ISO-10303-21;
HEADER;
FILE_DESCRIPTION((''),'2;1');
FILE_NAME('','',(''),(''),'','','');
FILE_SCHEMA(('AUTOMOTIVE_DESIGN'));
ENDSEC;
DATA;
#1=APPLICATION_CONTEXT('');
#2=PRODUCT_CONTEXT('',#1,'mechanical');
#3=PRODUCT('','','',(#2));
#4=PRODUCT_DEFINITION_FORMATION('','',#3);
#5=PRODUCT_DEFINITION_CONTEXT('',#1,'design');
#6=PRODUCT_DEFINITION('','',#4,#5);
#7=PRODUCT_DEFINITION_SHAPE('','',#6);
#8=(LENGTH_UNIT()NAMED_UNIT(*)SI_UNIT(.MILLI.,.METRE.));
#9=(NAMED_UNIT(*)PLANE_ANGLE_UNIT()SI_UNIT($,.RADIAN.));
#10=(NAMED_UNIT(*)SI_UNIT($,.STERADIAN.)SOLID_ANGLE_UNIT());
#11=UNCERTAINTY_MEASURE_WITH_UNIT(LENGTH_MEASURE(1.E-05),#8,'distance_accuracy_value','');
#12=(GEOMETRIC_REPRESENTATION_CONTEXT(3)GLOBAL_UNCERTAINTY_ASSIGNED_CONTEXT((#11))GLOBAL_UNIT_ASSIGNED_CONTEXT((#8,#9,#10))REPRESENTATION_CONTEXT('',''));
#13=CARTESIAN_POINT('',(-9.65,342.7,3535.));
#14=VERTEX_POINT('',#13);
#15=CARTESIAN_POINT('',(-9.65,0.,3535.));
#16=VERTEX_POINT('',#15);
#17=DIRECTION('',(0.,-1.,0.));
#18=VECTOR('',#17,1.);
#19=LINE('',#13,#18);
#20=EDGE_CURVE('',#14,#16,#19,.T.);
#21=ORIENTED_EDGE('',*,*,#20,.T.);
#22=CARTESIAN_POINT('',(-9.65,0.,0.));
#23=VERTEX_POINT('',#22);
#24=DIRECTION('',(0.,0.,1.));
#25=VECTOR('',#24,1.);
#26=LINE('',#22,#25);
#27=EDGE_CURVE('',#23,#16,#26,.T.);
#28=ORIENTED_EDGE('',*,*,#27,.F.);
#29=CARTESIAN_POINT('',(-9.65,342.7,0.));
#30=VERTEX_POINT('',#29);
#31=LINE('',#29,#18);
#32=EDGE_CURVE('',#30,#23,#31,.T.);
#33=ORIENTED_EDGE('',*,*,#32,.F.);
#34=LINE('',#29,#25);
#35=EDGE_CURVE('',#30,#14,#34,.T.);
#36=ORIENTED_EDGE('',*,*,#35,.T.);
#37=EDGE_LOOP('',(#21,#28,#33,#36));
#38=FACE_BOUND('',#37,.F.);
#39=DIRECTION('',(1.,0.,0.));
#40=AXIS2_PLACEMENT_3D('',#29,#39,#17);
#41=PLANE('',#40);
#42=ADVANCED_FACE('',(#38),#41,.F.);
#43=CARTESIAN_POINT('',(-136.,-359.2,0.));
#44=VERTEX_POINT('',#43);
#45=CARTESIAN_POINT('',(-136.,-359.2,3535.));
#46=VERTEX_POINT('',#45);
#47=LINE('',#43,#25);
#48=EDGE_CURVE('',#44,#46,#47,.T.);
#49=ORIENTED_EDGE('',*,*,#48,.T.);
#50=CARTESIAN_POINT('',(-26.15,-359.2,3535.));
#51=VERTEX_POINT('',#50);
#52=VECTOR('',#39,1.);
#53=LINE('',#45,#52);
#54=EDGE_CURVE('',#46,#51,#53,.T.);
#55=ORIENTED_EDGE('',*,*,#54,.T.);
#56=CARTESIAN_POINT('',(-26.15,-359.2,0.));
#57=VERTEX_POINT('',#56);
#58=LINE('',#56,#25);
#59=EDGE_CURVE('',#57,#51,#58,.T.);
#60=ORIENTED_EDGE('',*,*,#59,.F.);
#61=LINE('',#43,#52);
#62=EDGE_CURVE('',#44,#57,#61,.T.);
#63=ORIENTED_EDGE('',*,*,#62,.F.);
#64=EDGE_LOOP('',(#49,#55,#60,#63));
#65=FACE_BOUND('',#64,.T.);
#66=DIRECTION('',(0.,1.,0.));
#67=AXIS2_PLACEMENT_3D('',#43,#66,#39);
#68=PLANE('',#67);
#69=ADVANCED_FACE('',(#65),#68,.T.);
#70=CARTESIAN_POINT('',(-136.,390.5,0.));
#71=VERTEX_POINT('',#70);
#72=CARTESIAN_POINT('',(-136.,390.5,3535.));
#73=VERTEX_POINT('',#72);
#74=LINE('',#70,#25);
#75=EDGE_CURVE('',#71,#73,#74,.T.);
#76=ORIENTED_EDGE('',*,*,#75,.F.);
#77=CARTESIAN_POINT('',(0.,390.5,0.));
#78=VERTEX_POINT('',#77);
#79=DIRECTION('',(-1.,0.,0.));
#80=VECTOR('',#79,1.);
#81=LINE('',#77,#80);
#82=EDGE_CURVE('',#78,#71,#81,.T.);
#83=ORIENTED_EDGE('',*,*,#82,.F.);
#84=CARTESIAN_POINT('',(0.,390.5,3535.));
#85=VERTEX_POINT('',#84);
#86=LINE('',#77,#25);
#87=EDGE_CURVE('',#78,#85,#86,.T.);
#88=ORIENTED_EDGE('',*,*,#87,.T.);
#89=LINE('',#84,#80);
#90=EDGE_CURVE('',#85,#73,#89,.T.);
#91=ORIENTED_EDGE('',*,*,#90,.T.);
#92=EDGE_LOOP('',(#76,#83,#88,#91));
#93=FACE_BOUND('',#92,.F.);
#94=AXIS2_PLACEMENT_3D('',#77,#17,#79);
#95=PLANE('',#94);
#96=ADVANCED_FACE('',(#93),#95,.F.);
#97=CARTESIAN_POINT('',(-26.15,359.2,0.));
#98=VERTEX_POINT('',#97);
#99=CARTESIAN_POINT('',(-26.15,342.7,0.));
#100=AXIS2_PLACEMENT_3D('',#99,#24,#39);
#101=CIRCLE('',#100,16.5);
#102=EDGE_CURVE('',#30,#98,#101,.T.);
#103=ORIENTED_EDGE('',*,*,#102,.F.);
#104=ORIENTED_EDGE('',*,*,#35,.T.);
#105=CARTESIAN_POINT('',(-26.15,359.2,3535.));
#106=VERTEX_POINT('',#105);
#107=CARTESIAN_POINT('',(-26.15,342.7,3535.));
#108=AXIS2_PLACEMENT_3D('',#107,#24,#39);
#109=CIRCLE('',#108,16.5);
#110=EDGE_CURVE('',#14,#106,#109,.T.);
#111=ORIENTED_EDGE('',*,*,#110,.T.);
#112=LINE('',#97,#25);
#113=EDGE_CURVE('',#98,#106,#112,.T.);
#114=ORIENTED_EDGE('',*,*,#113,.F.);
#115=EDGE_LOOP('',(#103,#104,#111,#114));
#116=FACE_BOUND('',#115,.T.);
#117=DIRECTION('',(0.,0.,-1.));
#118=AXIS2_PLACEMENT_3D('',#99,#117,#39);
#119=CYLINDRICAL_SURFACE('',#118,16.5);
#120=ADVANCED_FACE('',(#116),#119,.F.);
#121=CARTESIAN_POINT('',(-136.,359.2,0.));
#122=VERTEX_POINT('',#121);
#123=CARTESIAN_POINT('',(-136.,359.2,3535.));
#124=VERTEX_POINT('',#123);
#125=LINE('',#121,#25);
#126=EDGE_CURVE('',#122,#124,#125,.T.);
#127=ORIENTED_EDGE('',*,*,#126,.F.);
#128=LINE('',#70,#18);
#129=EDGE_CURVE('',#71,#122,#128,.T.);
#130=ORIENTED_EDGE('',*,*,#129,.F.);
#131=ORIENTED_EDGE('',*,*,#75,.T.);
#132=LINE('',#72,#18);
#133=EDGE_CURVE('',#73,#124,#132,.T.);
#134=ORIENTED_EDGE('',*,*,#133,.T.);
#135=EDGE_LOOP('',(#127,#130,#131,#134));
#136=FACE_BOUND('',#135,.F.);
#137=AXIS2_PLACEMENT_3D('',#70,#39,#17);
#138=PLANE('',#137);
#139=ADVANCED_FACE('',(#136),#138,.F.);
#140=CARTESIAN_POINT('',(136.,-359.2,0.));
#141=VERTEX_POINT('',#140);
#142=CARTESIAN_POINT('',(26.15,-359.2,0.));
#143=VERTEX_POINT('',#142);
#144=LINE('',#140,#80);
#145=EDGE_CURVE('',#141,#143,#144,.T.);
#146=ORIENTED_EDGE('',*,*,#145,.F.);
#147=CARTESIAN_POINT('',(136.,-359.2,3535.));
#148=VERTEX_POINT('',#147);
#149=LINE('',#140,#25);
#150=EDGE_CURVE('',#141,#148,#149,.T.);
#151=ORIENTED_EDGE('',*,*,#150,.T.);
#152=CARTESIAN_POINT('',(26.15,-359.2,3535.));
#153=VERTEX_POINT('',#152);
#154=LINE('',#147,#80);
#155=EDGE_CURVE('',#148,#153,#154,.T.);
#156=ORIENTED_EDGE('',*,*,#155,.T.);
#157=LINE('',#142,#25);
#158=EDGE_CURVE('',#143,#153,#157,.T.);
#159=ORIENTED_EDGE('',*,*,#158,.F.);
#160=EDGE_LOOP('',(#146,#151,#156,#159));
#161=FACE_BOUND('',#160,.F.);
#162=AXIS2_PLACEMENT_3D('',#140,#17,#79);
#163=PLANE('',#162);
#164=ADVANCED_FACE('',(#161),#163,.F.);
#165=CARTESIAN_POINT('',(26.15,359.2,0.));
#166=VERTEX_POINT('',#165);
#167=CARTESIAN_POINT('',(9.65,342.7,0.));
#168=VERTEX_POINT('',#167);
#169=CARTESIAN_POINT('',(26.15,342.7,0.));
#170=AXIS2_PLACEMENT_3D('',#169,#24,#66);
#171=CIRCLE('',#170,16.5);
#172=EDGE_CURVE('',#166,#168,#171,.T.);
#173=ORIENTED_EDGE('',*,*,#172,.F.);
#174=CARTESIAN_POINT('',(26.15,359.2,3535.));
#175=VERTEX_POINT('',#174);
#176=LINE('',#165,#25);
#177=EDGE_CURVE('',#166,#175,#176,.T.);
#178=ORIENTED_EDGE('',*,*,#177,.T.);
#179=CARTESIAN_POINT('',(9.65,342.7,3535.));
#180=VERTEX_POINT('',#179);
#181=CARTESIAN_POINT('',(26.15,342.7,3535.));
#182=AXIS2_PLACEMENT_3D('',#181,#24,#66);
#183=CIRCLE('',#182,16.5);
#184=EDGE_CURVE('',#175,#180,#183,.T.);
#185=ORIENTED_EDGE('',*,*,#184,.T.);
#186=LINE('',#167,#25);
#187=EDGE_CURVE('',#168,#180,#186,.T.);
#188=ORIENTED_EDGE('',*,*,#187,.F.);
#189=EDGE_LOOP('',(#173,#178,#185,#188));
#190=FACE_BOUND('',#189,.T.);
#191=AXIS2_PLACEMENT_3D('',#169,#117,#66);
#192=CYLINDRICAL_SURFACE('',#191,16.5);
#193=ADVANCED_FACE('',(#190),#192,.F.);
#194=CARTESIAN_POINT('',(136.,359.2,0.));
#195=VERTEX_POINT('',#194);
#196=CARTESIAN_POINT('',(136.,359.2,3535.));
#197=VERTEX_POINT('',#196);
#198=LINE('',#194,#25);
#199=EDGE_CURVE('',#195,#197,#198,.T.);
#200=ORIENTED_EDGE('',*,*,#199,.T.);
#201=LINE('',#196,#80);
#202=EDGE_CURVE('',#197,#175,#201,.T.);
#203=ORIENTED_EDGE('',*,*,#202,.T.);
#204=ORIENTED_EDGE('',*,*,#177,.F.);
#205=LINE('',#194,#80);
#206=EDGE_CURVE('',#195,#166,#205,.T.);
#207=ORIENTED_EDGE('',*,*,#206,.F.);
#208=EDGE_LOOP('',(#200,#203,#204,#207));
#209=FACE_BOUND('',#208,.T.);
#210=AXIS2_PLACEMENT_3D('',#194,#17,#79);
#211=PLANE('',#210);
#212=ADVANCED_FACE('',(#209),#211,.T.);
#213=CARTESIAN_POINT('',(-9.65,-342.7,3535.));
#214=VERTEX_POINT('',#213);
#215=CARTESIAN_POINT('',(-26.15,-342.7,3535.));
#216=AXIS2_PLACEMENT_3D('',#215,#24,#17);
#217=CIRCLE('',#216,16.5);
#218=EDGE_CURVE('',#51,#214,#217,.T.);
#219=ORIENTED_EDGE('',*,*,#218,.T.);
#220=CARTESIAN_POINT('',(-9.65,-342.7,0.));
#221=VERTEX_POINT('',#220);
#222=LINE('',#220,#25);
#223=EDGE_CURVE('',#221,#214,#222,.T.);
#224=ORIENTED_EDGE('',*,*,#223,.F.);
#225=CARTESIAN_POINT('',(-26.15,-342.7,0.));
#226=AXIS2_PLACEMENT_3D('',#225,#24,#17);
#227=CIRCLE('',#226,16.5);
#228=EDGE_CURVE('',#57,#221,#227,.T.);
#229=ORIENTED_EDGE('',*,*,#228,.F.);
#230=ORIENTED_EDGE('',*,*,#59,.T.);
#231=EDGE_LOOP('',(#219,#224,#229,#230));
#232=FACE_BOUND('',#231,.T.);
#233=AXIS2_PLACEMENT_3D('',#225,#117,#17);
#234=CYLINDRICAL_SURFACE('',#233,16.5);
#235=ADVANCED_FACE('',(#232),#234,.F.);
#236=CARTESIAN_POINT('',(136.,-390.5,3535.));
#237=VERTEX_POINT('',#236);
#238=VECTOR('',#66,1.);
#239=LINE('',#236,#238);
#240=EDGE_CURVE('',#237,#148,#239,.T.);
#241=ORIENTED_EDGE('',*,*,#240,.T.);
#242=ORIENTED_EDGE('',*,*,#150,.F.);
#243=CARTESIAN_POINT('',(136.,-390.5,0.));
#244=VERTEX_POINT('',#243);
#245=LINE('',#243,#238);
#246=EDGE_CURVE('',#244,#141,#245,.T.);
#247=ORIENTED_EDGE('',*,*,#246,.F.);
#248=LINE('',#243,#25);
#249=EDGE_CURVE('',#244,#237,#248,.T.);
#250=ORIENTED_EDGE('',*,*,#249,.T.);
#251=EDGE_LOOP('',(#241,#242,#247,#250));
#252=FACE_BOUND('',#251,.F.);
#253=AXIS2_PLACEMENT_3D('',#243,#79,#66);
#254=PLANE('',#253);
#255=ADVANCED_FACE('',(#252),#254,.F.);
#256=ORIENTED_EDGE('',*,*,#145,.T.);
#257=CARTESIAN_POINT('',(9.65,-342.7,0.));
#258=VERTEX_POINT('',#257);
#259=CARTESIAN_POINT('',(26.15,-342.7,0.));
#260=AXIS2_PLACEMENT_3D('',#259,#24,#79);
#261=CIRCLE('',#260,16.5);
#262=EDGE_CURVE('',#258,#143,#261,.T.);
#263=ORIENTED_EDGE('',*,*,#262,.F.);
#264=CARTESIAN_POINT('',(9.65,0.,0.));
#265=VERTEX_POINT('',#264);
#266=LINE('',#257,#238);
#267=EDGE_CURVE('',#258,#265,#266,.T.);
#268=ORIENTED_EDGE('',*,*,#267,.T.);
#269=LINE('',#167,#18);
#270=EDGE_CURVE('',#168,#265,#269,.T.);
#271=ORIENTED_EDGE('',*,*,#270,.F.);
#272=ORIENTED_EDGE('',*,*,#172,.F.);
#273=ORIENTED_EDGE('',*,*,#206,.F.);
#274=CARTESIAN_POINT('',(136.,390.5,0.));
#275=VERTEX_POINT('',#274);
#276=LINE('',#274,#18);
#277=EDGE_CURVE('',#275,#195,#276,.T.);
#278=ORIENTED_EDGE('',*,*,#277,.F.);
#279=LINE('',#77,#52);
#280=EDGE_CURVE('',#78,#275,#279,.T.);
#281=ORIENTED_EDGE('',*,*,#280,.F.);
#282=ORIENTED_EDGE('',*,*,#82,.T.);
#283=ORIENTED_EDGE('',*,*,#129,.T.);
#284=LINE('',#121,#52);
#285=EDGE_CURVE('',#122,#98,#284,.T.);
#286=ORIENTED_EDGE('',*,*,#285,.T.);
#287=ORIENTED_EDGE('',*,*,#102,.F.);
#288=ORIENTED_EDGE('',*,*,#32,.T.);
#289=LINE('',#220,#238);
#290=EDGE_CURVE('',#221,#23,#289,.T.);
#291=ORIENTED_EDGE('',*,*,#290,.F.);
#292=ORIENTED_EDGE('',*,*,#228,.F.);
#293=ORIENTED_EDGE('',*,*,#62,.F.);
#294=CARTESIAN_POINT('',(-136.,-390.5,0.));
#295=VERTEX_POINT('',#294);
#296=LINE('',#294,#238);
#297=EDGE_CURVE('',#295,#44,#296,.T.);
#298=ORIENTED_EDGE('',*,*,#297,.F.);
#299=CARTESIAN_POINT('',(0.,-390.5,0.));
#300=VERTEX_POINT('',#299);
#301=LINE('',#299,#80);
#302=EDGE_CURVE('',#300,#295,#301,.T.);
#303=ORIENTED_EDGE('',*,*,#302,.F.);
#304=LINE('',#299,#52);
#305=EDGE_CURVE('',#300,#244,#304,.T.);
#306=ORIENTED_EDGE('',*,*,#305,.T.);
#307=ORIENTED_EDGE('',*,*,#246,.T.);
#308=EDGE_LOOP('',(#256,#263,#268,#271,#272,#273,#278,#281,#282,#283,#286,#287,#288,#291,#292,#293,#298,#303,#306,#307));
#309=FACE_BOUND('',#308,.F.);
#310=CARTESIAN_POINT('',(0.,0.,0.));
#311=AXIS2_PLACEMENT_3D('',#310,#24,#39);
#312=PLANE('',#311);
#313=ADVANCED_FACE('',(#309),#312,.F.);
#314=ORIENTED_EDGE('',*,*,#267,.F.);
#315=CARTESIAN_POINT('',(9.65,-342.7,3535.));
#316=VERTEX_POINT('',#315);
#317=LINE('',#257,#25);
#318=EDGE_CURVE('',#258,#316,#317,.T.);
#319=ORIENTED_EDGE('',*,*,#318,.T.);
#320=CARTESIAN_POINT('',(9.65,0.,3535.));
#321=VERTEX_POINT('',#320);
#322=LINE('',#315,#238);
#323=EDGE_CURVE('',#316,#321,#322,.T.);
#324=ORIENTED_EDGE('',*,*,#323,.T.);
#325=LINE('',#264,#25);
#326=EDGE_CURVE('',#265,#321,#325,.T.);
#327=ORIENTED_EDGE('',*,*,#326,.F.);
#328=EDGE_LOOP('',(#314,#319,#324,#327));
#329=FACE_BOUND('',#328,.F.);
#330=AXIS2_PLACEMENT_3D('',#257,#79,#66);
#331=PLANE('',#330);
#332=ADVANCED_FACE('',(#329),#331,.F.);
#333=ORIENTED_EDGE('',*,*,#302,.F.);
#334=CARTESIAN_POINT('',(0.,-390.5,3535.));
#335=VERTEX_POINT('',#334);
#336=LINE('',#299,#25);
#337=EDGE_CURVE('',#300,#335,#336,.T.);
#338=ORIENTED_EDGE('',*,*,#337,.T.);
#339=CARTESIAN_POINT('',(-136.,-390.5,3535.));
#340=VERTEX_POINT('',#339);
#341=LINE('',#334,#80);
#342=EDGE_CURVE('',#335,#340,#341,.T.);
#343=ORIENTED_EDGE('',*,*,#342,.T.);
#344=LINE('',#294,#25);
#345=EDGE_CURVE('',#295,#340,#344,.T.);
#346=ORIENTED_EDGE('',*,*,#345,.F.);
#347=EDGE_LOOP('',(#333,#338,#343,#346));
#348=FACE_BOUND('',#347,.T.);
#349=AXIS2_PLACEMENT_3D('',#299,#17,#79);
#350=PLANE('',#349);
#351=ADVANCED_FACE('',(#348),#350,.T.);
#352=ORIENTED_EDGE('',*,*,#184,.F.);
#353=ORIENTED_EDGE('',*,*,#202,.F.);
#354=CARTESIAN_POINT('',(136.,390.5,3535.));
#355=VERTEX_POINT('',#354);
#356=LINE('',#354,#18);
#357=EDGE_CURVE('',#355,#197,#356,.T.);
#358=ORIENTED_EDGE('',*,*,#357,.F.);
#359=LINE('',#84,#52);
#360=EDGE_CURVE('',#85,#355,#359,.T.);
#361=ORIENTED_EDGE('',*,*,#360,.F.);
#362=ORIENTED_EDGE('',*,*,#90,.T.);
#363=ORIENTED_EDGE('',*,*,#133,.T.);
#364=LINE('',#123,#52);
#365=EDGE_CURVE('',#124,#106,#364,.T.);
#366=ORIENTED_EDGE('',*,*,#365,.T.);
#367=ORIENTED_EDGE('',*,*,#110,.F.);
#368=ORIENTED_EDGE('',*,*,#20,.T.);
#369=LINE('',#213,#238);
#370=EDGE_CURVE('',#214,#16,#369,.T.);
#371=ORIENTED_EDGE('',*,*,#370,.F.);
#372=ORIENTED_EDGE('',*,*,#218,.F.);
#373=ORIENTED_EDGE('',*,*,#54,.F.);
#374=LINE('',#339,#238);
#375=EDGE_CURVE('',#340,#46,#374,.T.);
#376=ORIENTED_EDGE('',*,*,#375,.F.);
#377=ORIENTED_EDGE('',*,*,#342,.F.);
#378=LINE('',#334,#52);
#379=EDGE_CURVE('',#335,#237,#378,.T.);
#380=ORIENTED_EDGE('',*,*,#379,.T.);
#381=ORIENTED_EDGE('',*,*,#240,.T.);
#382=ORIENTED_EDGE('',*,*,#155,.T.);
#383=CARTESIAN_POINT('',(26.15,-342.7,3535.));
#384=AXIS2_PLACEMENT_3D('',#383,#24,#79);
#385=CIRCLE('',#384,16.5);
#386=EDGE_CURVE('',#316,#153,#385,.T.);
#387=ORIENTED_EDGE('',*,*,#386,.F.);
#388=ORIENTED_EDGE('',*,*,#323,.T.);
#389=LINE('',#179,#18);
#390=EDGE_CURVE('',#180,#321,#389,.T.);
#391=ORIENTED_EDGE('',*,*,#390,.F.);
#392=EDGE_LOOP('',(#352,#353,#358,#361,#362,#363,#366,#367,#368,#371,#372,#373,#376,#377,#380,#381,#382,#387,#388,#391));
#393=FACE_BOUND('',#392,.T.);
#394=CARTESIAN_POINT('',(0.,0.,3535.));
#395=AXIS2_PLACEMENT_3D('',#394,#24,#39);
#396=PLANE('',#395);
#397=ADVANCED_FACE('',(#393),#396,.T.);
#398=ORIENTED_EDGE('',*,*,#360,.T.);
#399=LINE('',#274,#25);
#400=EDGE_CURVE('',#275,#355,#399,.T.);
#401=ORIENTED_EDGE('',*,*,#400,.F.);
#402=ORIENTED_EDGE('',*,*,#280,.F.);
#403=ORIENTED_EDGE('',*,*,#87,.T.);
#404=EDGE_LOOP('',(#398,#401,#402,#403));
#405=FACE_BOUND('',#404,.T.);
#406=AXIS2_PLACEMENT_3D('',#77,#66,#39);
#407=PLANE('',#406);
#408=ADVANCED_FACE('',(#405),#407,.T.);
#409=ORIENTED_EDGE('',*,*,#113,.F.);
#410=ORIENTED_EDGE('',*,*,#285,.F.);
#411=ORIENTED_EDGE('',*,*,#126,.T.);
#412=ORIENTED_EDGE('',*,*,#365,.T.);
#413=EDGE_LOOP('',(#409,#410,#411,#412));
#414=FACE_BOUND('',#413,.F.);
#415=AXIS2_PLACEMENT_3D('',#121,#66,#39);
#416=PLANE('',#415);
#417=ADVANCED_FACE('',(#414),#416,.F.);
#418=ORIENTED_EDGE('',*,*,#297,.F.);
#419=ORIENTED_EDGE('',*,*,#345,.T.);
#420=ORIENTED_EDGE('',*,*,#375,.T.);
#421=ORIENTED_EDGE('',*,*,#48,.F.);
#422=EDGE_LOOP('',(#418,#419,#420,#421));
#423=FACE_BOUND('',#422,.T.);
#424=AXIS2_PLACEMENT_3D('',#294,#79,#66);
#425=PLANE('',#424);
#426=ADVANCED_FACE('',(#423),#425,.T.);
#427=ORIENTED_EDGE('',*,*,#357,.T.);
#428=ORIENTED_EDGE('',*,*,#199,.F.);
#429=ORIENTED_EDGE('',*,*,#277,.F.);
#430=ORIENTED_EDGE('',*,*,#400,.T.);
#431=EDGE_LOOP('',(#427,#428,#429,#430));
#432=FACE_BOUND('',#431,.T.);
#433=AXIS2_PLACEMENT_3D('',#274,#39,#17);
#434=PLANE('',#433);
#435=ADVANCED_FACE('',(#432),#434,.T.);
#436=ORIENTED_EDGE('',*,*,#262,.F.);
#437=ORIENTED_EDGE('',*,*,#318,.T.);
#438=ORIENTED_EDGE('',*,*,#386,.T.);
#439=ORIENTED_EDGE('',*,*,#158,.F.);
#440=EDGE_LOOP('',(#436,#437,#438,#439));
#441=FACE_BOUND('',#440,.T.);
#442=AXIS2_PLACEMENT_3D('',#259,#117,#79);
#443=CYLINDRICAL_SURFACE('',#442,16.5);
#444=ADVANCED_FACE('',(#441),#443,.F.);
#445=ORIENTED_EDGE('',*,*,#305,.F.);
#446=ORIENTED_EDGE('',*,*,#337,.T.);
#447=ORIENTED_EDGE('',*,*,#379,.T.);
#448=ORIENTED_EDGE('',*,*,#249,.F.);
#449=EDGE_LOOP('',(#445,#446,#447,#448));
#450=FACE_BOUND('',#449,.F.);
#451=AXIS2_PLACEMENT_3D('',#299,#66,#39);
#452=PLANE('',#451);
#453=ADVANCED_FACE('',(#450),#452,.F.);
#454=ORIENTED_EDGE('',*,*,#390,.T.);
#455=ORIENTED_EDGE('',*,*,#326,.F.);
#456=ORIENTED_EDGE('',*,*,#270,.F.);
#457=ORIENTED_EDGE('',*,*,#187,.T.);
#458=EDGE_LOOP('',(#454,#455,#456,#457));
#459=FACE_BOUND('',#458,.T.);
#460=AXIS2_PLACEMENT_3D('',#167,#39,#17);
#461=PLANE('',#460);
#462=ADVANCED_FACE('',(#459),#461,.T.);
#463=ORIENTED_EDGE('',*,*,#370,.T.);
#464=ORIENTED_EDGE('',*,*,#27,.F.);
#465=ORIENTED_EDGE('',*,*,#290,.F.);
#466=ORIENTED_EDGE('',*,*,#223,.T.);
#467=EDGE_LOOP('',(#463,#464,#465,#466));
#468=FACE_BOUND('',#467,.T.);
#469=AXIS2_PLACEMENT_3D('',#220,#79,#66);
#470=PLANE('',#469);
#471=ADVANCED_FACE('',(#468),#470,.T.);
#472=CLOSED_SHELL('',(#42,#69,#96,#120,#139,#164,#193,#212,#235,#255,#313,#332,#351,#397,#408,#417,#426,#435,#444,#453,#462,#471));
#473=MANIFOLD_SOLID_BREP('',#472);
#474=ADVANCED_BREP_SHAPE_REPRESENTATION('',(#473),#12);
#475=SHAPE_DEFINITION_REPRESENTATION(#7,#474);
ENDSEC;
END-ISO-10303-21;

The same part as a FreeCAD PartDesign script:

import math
import FreeCAD as App
import Part
import Sketcher
from FreeCAD import Vector

doc = App.newDocument("Part")
params = doc.addObject("Spreadsheet::Sheet", "Params")
for row, (alias, value) in enumerate([
    ("sketch1_radius", "16.5 mm"),
    ("sketch1_height", "31.3 mm"),
    ("pad1_length", "3535 mm"),
], start=1):
    params.set(f"A{row}", alias)
    params.set(f"B{row}", "=" + value)
    params.setAlias(f"B{row}", alias)

body = doc.addObject("PartDesign::Body", "Body")

sketch1 = body.newObject("Sketcher::SketchObject", "Sketch")
sketch1.AttachmentSupport = (doc.getObject("XY_Plane"), [""])
sketch1.MapMode = "FlatFace"
sketch1.addGeometry([
    Part.LineSegment(Vector(-136, -359.2, 0), Vector(-136, -390.5, 0)),
    Part.LineSegment(Vector(-136, -390.5, 0), Vector(136, -390.5, 0)),
    Part.LineSegment(Vector(136, -390.5, 0), Vector(136, -359.2, 0)),
    Part.LineSegment(Vector(136, -359.2, 0), Vector(26.15, -359.2, 0)),
    Part.ArcOfCircle(Part.Circle(Vector(26.15, -342.7, 0), Vector(0, 0, 1), 16.5), math.radians(180), math.radians(270)),
    Part.LineSegment(Vector(9.65, -342.7, 0), Vector(9.65, 342.7, 0)),
    Part.ArcOfCircle(Part.Circle(Vector(26.15, 342.7, 0), Vector(0, 0, 1), 16.5), math.radians(90), math.radians(180)),
    Part.LineSegment(Vector(26.15, 359.2, 0), Vector(136, 359.2, 0)),
    Part.LineSegment(Vector(136, 359.2, 0), Vector(136, 390.5, 0)),
    Part.LineSegment(Vector(136, 390.5, 0), Vector(-136, 390.5, 0)),
    Part.LineSegment(Vector(-136, 390.5, 0), Vector(-136, 359.2, 0)),
    Part.LineSegment(Vector(-136, 359.2, 0), Vector(-26.15, 359.2, 0)),
    Part.ArcOfCircle(Part.Circle(Vector(-26.15, 342.7, 0), Vector(0, 0, 1), 16.5), math.radians(0), math.radians(90)),
    Part.LineSegment(Vector(-9.65, 342.7, 0), Vector(-9.65, -342.7, 0)),
    Part.ArcOfCircle(Part.Circle(Vector(-26.15, -342.7, 0), Vector(0, 0, 1), 16.5), math.radians(-90), math.radians(0)),
    Part.LineSegment(Vector(-26.15, -359.2, 0), Vector(-136, -359.2, 0)),
], False)
sketch1.addConstraint([
    Sketcher.Constraint("Coincident", 0, 2, 1, 1),
    Sketcher.Constraint("Coincident", 1, 2, 2, 1),
    Sketcher.Constraint("Coincident", 2, 2, 3, 1),
    Sketcher.Constraint("Tangent", 3, 2, 4, 2),
    Sketcher.Constraint("Tangent", 4, 1, 5, 1),
    Sketcher.Constraint("Tangent", 5, 2, 6, 2),
    Sketcher.Constraint("Tangent", 6, 1, 7, 1),
    Sketcher.Constraint("Coincident", 7, 2, 8, 1),
    Sketcher.Constraint("Coincident", 8, 2, 9, 1),
    Sketcher.Constraint("Coincident", 9, 2, 10, 1),
    Sketcher.Constraint("Coincident", 10, 2, 11, 1),
    Sketcher.Constraint("Tangent", 11, 2, 12, 2),
    Sketcher.Constraint("Tangent", 12, 1, 13, 1),
    Sketcher.Constraint("Tangent", 13, 2, 14, 2),
    Sketcher.Constraint("Tangent", 14, 1, 15, 1),
    Sketcher.Constraint("Coincident", 15, 2, 0, 1),
    Sketcher.Constraint("Vertical", 0),
    Sketcher.Constraint("Horizontal", 1),
    Sketcher.Constraint("Vertical", 2),
    Sketcher.Constraint("Horizontal", 3),
    Sketcher.Constraint("Vertical", 5),
    Sketcher.Constraint("Horizontal", 7),
    Sketcher.Constraint("Vertical", 8),
    Sketcher.Constraint("Horizontal", 9),
    Sketcher.Constraint("Vertical", 10),
    Sketcher.Constraint("Horizontal", 11),
    Sketcher.Constraint("Vertical", 13),
    Sketcher.Constraint("Horizontal", 15),
    Sketcher.Constraint("Equal", 4, 6),
    Sketcher.Constraint("Equal", 6, 12),
    Sketcher.Constraint("Equal", 12, 14),
    Sketcher.Constraint("Symmetric", 4, 3, 12, 3, -1, 1),
    Sketcher.Constraint("Symmetric", 0, 2, 8, 2, -1, 1),
    Sketcher.Constraint("Symmetric", 7, 2, 10, 2, -2),
    Sketcher.Constraint("Symmetric", 2, 2, 15, 2, -2),
    Sketcher.Constraint("Radius", 4, 16.5),
    Sketcher.Constraint("DistanceY", 0, 2, 0, 1, 31.3),
    Sketcher.Constraint("DistanceX", 0, 2, -1, 1, 136.0),
    Sketcher.Constraint("DistanceY", 0, 2, -1, 1, 390.5),
    Sketcher.Constraint("DistanceX", -1, 1, 4, 1, 9.65),
])
sketch1.setExpression("Constraints[35]", "Params.sketch1_radius")
sketch1.setExpression("Constraints[36]", "Params.sketch1_height")
pad1 = body.newObject("PartDesign::Pad", "Pad")
pad1.Profile = sketch1
pad1.setExpression("Length", "Params.pad1_length")

doc.recompute()
